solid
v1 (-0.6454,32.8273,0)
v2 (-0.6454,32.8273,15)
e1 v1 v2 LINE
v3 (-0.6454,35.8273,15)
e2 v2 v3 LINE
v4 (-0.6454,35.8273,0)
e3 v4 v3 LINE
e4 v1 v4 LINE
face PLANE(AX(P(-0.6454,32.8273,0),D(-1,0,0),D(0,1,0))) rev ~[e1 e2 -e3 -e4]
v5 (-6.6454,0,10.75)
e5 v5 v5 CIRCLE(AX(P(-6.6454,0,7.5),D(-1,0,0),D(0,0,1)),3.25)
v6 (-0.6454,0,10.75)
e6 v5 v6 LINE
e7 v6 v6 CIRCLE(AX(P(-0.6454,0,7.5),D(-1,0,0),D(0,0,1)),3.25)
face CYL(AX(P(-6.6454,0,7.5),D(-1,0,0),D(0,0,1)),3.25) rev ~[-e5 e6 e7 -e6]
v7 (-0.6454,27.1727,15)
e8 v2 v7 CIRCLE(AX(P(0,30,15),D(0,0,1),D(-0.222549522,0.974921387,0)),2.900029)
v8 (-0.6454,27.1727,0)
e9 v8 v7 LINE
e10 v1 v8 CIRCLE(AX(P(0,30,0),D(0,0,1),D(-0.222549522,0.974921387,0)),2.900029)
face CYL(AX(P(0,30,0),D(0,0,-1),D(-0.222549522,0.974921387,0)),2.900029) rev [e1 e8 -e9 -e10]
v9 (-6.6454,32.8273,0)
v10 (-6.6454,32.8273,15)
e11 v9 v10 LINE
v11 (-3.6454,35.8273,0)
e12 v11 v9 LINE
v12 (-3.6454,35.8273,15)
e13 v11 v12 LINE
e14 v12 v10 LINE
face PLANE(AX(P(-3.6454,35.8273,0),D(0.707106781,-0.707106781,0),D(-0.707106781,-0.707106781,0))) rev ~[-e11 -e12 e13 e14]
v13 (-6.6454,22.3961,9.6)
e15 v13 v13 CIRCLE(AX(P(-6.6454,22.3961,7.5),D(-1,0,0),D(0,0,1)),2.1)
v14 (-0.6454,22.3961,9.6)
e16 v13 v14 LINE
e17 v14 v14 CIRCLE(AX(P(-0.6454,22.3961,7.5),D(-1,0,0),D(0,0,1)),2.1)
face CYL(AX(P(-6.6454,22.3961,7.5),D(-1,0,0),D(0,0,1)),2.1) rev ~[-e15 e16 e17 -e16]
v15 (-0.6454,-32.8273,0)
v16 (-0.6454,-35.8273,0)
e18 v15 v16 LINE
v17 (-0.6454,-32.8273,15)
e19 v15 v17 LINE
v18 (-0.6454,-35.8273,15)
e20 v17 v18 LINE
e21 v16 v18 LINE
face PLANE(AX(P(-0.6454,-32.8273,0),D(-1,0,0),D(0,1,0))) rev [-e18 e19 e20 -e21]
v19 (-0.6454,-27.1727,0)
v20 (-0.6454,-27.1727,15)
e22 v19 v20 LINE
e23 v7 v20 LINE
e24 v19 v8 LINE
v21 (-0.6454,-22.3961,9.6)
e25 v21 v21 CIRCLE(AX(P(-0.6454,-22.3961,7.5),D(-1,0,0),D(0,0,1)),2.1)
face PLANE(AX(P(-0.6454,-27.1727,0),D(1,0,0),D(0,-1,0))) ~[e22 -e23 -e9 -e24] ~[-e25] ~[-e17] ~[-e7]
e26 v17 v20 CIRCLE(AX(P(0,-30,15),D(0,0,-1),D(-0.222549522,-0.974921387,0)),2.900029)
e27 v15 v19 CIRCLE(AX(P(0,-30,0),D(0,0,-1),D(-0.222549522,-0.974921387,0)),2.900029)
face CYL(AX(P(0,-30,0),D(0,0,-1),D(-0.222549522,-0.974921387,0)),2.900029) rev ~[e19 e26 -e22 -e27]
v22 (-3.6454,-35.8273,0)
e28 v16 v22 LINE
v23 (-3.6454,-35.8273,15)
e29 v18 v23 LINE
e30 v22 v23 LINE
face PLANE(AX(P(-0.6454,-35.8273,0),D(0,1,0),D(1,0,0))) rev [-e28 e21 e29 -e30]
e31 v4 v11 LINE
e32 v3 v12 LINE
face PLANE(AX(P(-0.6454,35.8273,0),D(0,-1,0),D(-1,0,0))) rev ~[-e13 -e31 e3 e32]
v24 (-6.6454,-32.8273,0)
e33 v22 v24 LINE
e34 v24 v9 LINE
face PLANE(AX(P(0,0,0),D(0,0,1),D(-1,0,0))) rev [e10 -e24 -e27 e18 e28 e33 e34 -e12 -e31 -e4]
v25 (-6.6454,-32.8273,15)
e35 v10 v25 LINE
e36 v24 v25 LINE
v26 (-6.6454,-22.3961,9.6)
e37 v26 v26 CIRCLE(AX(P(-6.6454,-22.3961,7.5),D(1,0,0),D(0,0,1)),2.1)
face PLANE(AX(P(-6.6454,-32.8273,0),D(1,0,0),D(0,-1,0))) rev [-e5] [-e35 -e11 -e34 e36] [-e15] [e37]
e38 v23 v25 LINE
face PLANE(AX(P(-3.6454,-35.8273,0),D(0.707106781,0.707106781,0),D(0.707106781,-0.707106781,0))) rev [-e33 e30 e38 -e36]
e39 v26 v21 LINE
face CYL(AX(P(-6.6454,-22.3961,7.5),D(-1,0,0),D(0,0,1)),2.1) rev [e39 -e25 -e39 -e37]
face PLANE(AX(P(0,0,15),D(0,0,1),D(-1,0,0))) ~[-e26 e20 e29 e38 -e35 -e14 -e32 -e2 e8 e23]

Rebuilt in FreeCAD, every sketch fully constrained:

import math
import FreeCAD as App
import Part
import Sketcher
from FreeCAD import Vector

doc = App.newDocument("Part")
body = doc.addObject("PartDesign::Body", "Body")

sketch1 = body.newObject("Sketcher::SketchObject", "Sketch")
sketch1.AttachmentSupport = (doc.getObject("XY_Plane"), [""])
sketch1.MapMode = "FlatFace"
sketch1.addGeometry([
    Part.ArcOfCircle(Part.Circle(Vector(0, 30, 0), Vector(0, 0, 1), 2.900029), math.radians(102.858823), math.radians(257.141177)),
    Part.LineSegment(Vector(-0.6454, 32.8273, 0), Vector(-0.6454, 35.8273, 0)),
    Part.LineSegment(Vector(-0.6454, 35.8273, 0), Vector(-3.6454, 35.8273, 0)),
    Part.LineSegment(Vector(-3.6454, 35.8273, 0), Vector(-6.6454, 32.8273, 0)),
    Part.LineSegment(Vector(-6.6454, 32.8273, 0), Vector(-6.6454, 0, 0)),
    Part.LineSegment(Vector(-6.6454, 0, 0), Vector(-0.6454, 0, 0)),
    Part.LineSegment(Vector(-0.6454, 0, 0), Vector(-0.6454, 27.1727, 0)),
], False)
sketch1.addConstraint([
    Sketcher.Constraint("Coincident", 0, 1, 1, 1),
    Sketcher.Constraint("Coincident", 1, 2, 2, 1),
    Sketcher.Constraint("Coincident", 2, 2, 3, 1),
    Sketcher.Constraint("Coincident", 3, 2, 4, 1),
    Sketcher.Constraint("Coincident", 4, 2, 5, 1),
    Sketcher.Constraint("Coincident", 5, 2, 6, 1),
    Sketcher.Constraint("Coincident", 6, 2, 0, 2),
    Sketcher.Constraint("Vertical", 1),
    Sketcher.Constraint("Horizontal", 2),
    Sketcher.Constraint("Vertical", 4),
    Sketcher.Constraint("Horizontal", 5),
    Sketcher.Constraint("Vertical", 6),
    Sketcher.Constraint("PointOnObject", 0, 3, -2),
    Sketcher.Constraint("PointOnObject", 4, 2, -1),
    Sketcher.Constraint("Horizontal", 0, 1, 3, 2),
    Sketcher.Constraint("Vertical", 1, 2, 5, 2),
    Sketcher.Constraint("Equal", 2, 1),
    Sketcher.Constraint("Radius", 0, 2.9),
    Sketcher.Constraint("DistanceX", 2, 2, 2, 1, 3.0),
    Sketcher.Constraint("DistanceX", 5, 1, 5, 2, 6.0),
    Sketcher.Constraint("DistanceY", -1, 1, 0, 3, 30.0),
    Sketcher.Constraint("DistanceY", 4, 2, 4, 1, 32.8273),
])
pad1 = body.newObject("PartDesign::Pad", "Pad")
pad1.Profile = sketch1
pad1.Length = 15

sketch2 = body.newObject("Sketcher::SketchObject", "Sketch001")
sketch2.AttachmentSupport = (doc.getObject("YZ_Plane"), [""])
sketch2.MapMode = "FlatFace"
sketch2.AttachmentOffset = App.Placement(Vector(0, 0, -6.6454), App.Rotation())
sketch2.addGeometry(Part.Circle(Vector(22.3961, 7.5, 0), Vector(0, 0, 1), 2.1), False)
sketch2.addConstraint([
    Sketcher.Constraint("Diameter", 0, 4.2),
    Sketcher.Constraint("DistanceY", -1, 1, 0, 3, 7.5),
    Sketcher.Constraint("DistanceX", -1, 1, 0, 3, 22.396),
])
pocket1 = body.newObject("PartDesign::Pocket", "Pocket")
pocket1.Profile = sketch2
pocket1.Length = 8
pocket1.Reversed = True
doc.recompute()

mirrored = body.newObject("PartDesign::Mirrored", "Mirrored")
mirrored.Originals = [pad1, pocket1]
mirrored.MirrorPlane = (doc.getObject("XZ_Plane"), [""])
body.Tip = mirrored

sketch3 = body.newObject("Sketcher::SketchObject", "Sketch002")
sketch3.AttachmentSupport = (doc.getObject("YZ_Plane"), [""])
sketch3.MapMode = "FlatFace"
sketch3.AttachmentOffset = App.Placement(Vector(0, 0, -6.6454), App.Rotation())
sketch3.addGeometry(Part.Circle(Vector(0, 7.5, 0), Vector(0, 0, 1), 3.25), False)
sketch3.addConstraint([
    Sketcher.Constraint("PointOnObject", 0, 3, -2),
    Sketcher.Constraint("Diameter", 0, 6.5),
    Sketcher.Constraint("DistanceY", -1, 1, 0, 3, 7.5),
])
pocket2 = body.newObject("PartDesign::Pocket", "Pocket001")
pocket2.Profile = sketch3
pocket2.Type = "ThroughAll"
pocket2.Reversed = True

doc.recompute()
